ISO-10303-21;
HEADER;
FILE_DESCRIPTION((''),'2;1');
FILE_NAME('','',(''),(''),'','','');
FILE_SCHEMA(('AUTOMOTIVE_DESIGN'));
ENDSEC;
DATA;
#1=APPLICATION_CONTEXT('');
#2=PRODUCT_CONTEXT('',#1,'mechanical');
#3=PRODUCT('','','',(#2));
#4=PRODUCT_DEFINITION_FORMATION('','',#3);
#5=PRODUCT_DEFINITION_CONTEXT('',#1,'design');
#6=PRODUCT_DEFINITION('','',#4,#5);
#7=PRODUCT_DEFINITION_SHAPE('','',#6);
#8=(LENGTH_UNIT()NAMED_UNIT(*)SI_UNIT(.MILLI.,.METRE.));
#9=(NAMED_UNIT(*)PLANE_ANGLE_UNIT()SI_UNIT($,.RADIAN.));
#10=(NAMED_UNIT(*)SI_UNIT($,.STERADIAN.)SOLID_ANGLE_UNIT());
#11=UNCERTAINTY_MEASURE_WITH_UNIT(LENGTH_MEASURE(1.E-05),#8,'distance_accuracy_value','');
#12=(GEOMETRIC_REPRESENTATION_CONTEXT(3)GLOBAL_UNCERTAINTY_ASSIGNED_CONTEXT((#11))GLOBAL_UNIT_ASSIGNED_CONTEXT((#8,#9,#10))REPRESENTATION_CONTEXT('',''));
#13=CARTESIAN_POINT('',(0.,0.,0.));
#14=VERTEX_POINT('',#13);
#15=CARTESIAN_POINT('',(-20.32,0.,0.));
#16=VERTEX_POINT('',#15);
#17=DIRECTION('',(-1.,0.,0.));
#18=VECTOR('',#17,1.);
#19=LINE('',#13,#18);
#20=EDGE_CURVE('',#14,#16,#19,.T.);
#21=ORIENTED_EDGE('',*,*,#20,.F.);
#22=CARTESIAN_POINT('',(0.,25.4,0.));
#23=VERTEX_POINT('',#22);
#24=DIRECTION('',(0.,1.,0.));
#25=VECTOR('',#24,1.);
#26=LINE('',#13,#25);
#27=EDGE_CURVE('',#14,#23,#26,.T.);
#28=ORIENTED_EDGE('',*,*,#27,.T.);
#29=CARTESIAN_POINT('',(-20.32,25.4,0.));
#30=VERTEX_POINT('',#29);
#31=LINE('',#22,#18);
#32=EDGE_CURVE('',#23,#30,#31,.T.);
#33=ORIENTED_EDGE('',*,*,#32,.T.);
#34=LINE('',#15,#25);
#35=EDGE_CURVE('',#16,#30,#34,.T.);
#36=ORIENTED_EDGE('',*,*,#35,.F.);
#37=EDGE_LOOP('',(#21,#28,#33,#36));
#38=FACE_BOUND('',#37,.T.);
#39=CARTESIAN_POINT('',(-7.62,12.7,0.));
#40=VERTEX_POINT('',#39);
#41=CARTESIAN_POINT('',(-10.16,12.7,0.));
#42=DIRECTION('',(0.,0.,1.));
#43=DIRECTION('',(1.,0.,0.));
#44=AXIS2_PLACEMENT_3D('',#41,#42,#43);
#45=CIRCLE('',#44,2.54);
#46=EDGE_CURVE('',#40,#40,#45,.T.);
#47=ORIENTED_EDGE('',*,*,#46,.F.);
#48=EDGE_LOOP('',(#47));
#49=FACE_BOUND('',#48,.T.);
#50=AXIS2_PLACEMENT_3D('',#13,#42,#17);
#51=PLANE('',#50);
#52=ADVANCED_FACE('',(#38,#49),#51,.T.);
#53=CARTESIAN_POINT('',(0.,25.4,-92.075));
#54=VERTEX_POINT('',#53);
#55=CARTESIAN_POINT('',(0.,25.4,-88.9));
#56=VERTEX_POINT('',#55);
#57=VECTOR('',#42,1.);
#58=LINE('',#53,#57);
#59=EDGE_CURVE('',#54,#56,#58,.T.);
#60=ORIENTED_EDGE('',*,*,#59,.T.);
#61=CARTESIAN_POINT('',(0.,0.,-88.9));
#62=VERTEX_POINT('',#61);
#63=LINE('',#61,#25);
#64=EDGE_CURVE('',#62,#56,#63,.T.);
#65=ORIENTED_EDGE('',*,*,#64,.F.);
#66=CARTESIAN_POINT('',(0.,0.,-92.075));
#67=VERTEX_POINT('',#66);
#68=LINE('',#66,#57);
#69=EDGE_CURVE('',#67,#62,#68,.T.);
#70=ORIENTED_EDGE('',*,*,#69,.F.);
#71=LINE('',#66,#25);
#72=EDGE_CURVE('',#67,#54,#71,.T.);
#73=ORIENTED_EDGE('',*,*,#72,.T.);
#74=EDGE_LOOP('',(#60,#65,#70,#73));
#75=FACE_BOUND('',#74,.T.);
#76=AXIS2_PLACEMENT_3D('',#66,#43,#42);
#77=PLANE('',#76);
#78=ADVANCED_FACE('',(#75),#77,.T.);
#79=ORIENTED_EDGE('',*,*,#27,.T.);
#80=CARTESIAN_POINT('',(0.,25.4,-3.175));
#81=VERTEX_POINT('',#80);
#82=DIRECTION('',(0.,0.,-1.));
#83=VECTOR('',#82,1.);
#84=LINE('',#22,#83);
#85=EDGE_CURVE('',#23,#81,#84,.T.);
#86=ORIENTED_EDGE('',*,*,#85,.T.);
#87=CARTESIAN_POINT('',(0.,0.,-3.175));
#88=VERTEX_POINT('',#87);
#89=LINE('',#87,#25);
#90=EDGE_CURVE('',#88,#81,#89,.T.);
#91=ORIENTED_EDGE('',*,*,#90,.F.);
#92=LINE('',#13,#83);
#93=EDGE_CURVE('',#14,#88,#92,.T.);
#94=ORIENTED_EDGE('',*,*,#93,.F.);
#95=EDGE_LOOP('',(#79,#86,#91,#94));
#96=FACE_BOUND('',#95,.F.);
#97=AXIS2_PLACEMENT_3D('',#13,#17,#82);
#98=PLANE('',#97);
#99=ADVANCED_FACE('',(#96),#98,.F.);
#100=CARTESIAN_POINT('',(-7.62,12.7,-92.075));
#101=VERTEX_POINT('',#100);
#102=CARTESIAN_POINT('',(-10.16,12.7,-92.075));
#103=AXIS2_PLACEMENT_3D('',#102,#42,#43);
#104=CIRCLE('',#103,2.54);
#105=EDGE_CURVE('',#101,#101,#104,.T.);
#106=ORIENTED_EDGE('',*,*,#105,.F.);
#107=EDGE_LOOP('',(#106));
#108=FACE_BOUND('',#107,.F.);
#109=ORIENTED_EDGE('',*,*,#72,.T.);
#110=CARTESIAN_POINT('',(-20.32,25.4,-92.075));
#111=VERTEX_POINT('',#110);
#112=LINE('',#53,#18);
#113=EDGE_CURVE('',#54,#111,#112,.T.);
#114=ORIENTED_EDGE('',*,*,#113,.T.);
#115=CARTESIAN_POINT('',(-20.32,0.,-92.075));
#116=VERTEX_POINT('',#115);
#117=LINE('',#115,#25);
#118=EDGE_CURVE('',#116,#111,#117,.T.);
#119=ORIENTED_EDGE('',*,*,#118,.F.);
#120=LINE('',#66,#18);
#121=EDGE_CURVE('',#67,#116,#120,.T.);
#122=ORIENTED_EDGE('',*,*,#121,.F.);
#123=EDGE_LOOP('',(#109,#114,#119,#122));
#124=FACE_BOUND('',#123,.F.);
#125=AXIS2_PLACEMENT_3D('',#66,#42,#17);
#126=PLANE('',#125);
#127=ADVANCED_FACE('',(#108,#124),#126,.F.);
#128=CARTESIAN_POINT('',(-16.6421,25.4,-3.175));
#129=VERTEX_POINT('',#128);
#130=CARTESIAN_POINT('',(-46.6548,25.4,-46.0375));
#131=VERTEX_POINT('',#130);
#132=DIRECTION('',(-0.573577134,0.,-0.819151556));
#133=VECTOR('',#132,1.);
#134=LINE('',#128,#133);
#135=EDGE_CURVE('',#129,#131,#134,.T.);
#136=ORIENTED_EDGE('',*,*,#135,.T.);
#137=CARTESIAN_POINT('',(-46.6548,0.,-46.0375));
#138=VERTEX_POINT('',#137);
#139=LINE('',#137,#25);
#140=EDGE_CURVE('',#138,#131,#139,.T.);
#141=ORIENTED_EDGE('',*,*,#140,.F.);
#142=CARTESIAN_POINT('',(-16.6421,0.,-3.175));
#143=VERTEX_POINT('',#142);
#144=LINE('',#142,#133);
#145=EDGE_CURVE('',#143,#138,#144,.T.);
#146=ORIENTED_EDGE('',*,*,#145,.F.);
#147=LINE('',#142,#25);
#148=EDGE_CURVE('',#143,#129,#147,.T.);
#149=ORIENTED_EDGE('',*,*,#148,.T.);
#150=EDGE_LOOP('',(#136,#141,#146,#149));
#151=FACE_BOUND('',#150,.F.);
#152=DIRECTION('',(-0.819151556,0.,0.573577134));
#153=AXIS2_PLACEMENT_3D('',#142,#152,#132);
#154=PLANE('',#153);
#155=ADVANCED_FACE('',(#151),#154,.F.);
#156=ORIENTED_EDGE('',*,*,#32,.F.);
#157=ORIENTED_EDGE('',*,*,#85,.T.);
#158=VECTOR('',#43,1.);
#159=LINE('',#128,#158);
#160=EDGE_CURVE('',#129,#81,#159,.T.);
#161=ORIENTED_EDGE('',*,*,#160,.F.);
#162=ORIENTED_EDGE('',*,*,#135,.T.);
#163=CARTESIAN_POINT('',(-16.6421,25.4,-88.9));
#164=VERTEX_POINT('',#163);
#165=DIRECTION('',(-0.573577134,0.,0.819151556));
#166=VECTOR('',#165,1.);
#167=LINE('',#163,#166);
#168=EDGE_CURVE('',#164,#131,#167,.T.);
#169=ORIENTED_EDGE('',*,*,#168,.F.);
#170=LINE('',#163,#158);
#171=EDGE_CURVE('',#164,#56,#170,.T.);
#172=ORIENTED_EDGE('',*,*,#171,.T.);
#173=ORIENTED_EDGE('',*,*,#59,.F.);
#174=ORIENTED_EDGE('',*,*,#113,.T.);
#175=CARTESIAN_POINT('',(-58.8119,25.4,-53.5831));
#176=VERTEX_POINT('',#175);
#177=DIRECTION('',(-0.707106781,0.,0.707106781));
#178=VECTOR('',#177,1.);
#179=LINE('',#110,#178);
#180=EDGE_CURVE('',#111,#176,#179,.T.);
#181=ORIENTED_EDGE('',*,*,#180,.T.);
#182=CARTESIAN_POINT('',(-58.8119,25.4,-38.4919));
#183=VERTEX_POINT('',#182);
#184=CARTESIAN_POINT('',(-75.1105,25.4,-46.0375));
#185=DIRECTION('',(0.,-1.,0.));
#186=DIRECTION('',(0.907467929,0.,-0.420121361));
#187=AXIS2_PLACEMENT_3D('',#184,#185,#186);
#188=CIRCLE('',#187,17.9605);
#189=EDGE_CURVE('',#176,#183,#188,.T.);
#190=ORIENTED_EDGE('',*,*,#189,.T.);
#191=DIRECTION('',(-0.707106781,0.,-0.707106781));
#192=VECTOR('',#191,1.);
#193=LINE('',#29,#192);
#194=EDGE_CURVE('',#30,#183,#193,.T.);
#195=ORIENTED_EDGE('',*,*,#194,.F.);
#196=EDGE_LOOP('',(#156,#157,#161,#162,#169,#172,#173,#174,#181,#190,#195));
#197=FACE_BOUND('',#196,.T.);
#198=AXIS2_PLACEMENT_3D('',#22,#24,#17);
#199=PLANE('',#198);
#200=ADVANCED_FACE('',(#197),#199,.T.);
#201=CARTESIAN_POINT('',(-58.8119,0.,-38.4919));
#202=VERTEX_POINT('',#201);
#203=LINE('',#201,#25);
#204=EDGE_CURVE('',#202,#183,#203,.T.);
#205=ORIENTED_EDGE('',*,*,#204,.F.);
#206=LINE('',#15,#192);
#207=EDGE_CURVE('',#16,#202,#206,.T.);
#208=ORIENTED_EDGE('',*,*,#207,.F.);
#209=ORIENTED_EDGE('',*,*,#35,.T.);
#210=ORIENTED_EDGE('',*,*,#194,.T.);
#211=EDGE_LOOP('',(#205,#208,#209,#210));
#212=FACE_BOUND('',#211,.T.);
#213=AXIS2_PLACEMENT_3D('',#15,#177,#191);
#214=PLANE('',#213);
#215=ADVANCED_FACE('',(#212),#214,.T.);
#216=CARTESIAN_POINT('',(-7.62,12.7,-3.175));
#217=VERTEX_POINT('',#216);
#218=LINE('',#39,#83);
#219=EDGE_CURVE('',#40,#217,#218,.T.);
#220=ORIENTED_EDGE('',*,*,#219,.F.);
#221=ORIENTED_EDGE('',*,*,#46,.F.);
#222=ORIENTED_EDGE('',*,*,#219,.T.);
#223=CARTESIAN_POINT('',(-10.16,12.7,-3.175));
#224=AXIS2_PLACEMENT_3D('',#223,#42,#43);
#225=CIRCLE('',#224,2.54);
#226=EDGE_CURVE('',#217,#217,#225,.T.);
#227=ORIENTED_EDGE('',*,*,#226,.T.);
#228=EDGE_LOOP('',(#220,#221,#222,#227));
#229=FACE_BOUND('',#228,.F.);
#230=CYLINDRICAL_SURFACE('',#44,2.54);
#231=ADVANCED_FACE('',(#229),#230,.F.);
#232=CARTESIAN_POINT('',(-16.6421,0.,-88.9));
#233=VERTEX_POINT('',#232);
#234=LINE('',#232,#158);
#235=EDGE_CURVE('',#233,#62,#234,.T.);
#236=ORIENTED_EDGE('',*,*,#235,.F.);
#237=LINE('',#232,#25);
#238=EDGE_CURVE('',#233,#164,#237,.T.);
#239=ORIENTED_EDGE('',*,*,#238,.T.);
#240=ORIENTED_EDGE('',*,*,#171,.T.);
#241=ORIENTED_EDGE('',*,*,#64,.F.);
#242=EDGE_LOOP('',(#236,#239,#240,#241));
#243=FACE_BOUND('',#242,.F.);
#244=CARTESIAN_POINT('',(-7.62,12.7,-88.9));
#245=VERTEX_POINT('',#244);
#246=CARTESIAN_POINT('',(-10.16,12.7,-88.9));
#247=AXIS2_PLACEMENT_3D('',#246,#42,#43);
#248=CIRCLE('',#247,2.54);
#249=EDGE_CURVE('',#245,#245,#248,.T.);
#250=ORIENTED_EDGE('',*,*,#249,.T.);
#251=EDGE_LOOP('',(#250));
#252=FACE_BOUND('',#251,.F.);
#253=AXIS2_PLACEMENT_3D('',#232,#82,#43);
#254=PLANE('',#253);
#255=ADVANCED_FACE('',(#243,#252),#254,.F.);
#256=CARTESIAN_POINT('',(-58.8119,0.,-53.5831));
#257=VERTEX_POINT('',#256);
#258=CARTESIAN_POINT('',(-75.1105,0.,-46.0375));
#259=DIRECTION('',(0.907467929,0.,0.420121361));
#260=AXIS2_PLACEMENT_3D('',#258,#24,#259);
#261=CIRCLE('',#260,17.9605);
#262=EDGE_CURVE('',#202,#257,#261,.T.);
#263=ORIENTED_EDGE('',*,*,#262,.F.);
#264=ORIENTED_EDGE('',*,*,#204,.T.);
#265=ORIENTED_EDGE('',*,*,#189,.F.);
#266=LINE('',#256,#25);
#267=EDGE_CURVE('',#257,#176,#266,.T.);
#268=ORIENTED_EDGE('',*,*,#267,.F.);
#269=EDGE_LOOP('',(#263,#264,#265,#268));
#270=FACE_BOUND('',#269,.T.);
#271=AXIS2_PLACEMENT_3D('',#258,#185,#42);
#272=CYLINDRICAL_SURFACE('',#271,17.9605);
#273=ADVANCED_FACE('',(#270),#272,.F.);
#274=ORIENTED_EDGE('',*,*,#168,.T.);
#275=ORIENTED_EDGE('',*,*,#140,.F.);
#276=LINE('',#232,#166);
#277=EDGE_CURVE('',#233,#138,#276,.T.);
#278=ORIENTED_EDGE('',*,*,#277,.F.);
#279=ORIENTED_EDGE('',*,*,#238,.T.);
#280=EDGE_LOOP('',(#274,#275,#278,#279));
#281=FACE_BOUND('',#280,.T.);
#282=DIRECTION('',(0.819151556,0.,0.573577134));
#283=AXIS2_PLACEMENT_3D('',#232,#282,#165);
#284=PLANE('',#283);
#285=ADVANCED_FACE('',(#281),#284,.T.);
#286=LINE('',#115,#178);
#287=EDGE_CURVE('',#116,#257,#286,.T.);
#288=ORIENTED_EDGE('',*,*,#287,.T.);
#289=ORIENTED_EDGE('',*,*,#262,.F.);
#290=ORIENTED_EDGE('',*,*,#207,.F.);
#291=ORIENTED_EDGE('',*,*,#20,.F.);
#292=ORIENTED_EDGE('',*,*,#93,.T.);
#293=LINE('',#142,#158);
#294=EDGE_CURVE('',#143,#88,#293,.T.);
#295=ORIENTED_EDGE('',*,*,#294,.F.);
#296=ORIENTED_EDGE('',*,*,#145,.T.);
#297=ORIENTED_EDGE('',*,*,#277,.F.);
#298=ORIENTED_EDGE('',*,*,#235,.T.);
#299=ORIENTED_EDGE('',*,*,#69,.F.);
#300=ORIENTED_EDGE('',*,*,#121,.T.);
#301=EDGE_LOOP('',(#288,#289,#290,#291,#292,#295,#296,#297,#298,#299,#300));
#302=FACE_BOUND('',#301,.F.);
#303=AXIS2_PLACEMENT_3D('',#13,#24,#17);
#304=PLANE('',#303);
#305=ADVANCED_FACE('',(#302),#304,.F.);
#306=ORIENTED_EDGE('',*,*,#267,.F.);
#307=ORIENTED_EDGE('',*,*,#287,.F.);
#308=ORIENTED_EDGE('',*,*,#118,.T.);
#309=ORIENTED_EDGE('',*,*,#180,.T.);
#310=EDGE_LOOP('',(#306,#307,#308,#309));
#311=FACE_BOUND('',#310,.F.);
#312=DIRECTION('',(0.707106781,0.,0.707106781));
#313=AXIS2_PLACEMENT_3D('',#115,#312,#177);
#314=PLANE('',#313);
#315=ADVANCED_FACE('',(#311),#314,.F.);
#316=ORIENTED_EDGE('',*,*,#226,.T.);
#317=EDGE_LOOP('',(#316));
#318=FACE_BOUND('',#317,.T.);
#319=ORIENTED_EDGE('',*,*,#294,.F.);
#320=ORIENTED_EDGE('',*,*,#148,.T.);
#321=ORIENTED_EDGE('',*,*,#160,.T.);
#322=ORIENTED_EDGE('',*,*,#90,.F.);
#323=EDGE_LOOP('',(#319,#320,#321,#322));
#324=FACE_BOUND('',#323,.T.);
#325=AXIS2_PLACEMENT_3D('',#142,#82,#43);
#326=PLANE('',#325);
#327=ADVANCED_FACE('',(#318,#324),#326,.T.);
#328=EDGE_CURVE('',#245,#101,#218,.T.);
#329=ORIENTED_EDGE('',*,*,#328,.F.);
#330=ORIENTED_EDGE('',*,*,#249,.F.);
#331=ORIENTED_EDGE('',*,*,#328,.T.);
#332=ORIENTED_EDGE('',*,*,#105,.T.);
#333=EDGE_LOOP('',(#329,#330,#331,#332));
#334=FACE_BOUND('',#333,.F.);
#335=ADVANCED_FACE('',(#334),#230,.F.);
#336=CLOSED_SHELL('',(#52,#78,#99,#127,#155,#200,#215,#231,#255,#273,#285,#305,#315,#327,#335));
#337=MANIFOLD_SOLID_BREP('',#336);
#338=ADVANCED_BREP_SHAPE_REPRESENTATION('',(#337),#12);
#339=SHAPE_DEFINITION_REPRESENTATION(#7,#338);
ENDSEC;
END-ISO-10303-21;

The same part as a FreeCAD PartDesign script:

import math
import FreeCAD as App
import Part
import Sketcher

V = App.Vector
Q = App.Units.Quantity

doc = App.newDocument("Part")
params = doc.addObject("Spreadsheet::Sheet", "Params")
for row, (alias, value) in enumerate([
    ("sketch1_width", "0.8 in"),
    ("pad1_length", "1 in"),
    ("sketch2_diameter", "0.2 in"),
    ("pocket1_length", "5.625 in"),
], start=1):
    params.set(f"A{row}", alias)
    params.set(f"B{row}", "=" + value)
    params.setAlias(f"B{row}", alias)

body = doc.addObject("PartDesign::Body", "Body")

# Sketch on XZ plane
sketch1 = body.newObject("Sketcher::SketchObject", "Sketch")
sketch1.AttachmentSupport = (doc.getObject("XZ_Plane"), [""])
sketch1.MapMode = "FlatFace"
sketch1.addGeometry(Part.LineSegment(V(-20.32, 0, 0), V(0, 0, 0)), False)
sketch1.addGeometry(Part.LineSegment(V(0, 0, 0), V(0, -3.175, 0)), False)
sketch1.addGeometry(Part.LineSegment(V(0, -3.175, 0), V(-16.6421, -3.175, 0)), False)
sketch1.addGeometry(Part.LineSegment(V(-16.6421, -3.175, 0), V(-46.6548, -46.0375, 0)), False)
sketch1.addGeometry(Part.LineSegment(V(-46.6548, -46.0375, 0), V(-16.6421, -88.9, 0)), False)
sketch1.addGeometry(Part.LineSegment(V(-16.6421, -88.9, 0), V(0, -88.9, 0)), False)
sketch1.addGeometry(Part.LineSegment(V(0, -88.9, 0), V(0, -92.075, 0)), False)
sketch1.addGeometry(Part.LineSegment(V(0, -92.075, 0), V(-20.32, -92.075, 0)), False)
sketch1.addGeometry(Part.LineSegment(V(-20.32, -92.075, 0), V(-58.8119, -53.5831, 0)), False)
sketch1.addGeometry(Part.ArcOfCircle(Part.Circle(V(-75.1105, -46.0375, 0), V(0, 0, 1), 17.9605), math.radians(-24.84225), math.radians(24.84225)), False)
sketch1.addGeometry(Part.LineSegment(V(-58.8119, -38.4919, 0), V(-20.32, 0, 0)), False)
sketch1.addConstraint(Sketcher.Constraint("Coincident", 0, 2, 1, 1))
sketch1.addConstraint(Sketcher.Constraint("Coincident", 1, 2, 2, 1))
sketch1.addConstraint(Sketcher.Constraint("Coincident", 2, 2, 3, 1))
sketch1.addConstraint(Sketcher.Constraint("Coincident", 3, 2, 4, 1))
sketch1.addConstraint(Sketcher.Constraint("Coincident", 4, 2, 5, 1))
sketch1.addConstraint(Sketcher.Constraint("Coincident", 5, 2, 6, 1))
sketch1.addConstraint(Sketcher.Constraint("Coincident", 6, 2, 7, 1))
sketch1.addConstraint(Sketcher.Constraint("Coincident", 7, 2, 8, 1))
sketch1.addConstraint(Sketcher.Constraint("Coincident", 8, 2, 9, 1))
sketch1.addConstraint(Sketcher.Constraint("Coincident", 9, 2, 10, 1))
sketch1.addConstraint(Sketcher.Constraint("Coincident", 10, 2, 0, 1))
sketch1.addConstraint(Sketcher.Constraint("Horizontal", 0))
sketch1.addConstraint(Sketcher.Constraint("Vertical", 1))
sketch1.addConstraint(Sketcher.Constraint("Horizontal", 2))
sketch1.addConstraint(Sketcher.Constraint("Horizontal", 5))
sketch1.addConstraint(Sketcher.Constraint("Vertical", 6))
sketch1.addConstraint(Sketcher.Constraint("Horizontal", 7))
sketch1.addConstraint(Sketcher.Constraint("Coincident", 0, 2, -1, 1))
sketch1.addConstraint(Sketcher.Constraint("PointOnObject", 5, 2, -2))
sketch1.addConstraint(Sketcher.Constraint("Perpendicular", 8, 10))
sketch1.addConstraint(Sketcher.Constraint("Horizontal", 9, 3, 3, 2))
sketch1.addConstraint(Sketcher.Constraint("Vertical", 2, 2, 4, 2))
sketch1.addConstraint(Sketcher.Constraint("Vertical", 8, 2, 9, 2))
sketch1.addConstraint(Sketcher.Constraint("Vertical", 7, 2, 10, 2))
sketch1.addConstraint(Sketcher.Constraint("Equal", 1, 6))
sketch1.addConstraint(Sketcher.Constraint("Equal", 3, 4))
sketch1.addConstraint(Sketcher.Constraint("DistanceX", 0, 1, 0, 2, Q("0.8 in")))
sketch1.addConstraint(Sketcher.Constraint("Angle", 4, Q("-55 deg")))
sketch1.addConstraint(Sketcher.Constraint("DistanceY", 6, 2, -1, 1, Q("3.625 in")))
sketch1.addConstraint(Sketcher.Constraint("DistanceY", 4, 2, -1, 1, Q("3.5 in")))
sketch1.addConstraint(Sketcher.Constraint("Radius", 9, Q("0.7071 in")))
sketch1.addConstraint(Sketcher.Constraint("DistanceX", 2, 2, 2, 1, Q("0.6552 in")))
sketch1.addConstraint(Sketcher.Constraint("DistanceX", 9, 3, -1, 1, Q("2.9571 in")))
sketch1.setExpression("Constraints[26]", "Params.sketch1_width")
pad1 = body.newObject("PartDesign::Pad", "Pad")
pad1.Profile = sketch1
pad1.setExpression("Length", "Params.pad1_length")
pad1.Reversed = True

# Sketch on XY plane
sketch2 = body.newObject("Sketcher::SketchObject", "Sketch001")
sketch2.AttachmentSupport = (doc.getObject("XY_Plane"), [""])
sketch2.MapMode = "FlatFace"
sketch2.addGeometry(Part.Circle(V(-10.16, 12.7, 0), V(0, 0, 1), 2.54), False)
sketch2.addConstraint(Sketcher.Constraint("Diameter", 0, Q("0.2 in")))
sketch2.addConstraint(Sketcher.Constraint("DistanceX", 0, 3, -1, 1, Q("0.4 in")))
sketch2.addConstraint(Sketcher.Constraint("DistanceY", -1, 1, 0, 3, Q("0.5 in")))
sketch2.setExpression("Constraints[0]", "Params.sketch2_diameter")
pocket1 = body.newObject("PartDesign::Pocket", "Pocket")
pocket1.Profile = sketch2
pocket1.setExpression("Length", "Params.pocket1_length")

doc.recompute()
